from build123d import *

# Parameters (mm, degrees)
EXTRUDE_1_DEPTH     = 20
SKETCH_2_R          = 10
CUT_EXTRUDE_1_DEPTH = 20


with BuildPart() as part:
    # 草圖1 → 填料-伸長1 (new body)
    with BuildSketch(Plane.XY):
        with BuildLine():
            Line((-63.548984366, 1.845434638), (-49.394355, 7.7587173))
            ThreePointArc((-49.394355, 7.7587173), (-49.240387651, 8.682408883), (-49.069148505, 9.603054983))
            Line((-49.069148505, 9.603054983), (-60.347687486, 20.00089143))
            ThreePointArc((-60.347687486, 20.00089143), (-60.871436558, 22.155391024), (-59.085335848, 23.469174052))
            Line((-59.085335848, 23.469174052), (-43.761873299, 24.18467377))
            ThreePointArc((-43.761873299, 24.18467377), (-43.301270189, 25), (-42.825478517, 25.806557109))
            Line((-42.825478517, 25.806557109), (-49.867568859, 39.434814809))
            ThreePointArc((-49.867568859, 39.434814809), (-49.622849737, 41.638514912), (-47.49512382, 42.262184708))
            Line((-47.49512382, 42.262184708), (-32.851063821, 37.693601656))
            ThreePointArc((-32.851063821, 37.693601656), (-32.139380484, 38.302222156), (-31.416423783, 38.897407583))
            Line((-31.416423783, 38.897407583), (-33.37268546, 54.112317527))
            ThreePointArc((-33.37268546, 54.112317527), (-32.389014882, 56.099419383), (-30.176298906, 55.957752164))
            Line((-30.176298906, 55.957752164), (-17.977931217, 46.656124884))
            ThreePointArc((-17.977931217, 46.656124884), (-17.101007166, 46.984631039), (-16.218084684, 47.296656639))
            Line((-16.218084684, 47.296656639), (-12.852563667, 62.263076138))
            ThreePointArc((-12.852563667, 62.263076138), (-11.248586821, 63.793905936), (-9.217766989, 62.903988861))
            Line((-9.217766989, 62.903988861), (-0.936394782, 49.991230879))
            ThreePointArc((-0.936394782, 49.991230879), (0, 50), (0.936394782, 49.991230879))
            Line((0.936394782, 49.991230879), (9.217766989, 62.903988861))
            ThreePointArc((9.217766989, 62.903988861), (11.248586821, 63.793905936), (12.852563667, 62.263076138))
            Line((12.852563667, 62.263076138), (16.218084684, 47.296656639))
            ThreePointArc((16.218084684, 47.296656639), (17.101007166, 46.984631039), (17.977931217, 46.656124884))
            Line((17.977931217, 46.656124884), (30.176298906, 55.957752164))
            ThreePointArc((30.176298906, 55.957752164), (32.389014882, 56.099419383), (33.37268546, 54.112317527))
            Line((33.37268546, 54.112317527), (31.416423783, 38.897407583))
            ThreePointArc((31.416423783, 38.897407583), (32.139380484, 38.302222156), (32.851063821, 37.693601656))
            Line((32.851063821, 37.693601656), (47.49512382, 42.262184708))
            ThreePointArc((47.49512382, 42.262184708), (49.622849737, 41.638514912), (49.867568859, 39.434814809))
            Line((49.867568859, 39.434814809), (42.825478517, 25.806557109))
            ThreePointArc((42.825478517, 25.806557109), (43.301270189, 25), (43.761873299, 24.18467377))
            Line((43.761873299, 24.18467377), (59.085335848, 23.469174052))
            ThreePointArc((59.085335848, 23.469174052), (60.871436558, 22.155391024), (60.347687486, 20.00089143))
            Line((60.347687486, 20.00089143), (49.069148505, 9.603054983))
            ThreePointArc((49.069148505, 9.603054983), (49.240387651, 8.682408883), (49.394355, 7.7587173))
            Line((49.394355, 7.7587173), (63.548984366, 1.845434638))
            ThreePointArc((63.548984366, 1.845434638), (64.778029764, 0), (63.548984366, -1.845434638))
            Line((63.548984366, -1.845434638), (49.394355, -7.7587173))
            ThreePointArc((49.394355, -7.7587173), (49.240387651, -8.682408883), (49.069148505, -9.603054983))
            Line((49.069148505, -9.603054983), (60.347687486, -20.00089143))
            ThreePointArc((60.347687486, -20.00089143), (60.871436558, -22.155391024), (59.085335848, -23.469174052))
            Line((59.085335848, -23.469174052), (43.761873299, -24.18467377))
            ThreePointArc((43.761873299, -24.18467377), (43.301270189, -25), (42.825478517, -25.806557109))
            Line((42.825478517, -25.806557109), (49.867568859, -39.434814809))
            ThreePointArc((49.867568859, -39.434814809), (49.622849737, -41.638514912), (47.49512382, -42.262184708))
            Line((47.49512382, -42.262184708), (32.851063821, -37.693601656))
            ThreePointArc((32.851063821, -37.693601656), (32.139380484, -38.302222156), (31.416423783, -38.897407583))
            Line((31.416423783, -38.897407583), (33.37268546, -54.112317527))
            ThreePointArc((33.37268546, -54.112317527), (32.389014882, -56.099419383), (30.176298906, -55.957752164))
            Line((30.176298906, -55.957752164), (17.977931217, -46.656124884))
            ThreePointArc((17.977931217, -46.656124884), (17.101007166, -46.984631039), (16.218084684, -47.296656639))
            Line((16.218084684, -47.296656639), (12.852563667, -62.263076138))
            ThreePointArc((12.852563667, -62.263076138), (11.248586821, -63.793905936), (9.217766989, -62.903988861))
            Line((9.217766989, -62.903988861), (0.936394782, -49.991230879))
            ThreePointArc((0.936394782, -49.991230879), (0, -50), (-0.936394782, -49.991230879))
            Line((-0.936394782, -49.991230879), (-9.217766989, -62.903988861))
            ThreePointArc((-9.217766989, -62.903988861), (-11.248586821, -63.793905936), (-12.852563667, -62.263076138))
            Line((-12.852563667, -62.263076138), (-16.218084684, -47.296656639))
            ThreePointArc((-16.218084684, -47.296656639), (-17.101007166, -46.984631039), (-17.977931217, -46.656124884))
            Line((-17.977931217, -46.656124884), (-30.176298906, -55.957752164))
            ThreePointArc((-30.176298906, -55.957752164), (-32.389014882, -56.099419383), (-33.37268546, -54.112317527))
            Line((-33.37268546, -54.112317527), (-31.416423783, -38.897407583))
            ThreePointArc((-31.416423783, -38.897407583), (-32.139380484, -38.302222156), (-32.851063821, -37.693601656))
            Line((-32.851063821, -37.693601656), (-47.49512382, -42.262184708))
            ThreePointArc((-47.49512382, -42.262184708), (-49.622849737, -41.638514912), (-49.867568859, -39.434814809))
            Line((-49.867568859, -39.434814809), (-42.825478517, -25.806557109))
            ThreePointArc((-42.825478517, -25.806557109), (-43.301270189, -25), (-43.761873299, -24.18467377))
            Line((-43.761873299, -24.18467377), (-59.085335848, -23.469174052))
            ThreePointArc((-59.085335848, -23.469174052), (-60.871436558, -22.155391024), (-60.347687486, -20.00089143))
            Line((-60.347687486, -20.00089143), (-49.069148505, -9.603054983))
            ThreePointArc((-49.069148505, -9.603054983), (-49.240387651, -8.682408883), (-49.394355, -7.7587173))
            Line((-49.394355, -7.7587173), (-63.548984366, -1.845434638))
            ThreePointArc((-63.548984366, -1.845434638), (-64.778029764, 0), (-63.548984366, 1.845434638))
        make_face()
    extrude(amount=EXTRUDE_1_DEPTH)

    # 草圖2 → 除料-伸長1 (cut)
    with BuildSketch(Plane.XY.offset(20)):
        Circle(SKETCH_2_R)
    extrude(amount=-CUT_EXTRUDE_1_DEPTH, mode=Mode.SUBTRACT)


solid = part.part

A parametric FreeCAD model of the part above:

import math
import FreeCAD as App
import Part
import Sketcher

doc = App.newDocument("Part")
body = doc.addObject("PartDesign::Body", "Body")

# Sketch on XY plane
sketch1 = doc.addObject("Sketcher::SketchObject", "Sketch")
body.addObject(sketch1)
sketch1.AttachmentSupport = (doc.XY_Plane, [""])
sketch1.MapMode = "FlatFace"
sketch1.addGeometry([
    Part.LineSegment(App.Vector(-49.4, 7.8, 0), App.Vector(-63.5, 1.8, 0)),  # 0
    Part.ArcOfCircle(Part.Circle(App.Vector(-62.8, 0, 0), App.Vector(0, 0, 1), 2), math.radians(113), math.radians(247)),  # 1
    Part.LineSegment(App.Vector(-63.5, -1.8, 0), App.Vector(-49.4, -7.8, 0)),  # 2
    Part.ArcOfCircle(Part.Circle(App.Vector(0, 0, 0), App.Vector(0, 0, 1), 50), math.radians(-171.07), math.radians(-168.93)),  # 3
    Part.LineSegment(App.Vector(-49.1, -9.6, 0), App.Vector(-60.3, -20, 0)),  # 4
    Part.ArcOfCircle(Part.Circle(App.Vector(-59, -21.5, 0), App.Vector(0, 0, 1), 2), math.radians(133), math.radians(267)),  # 5
    Part.LineSegment(App.Vector(-59.1, -23.5, 0), App.Vector(-43.8, -24.2, 0)),  # 6
    Part.ArcOfCircle(Part.Circle(App.Vector(0, 0, 0), App.Vector(0, 0, 1), 50), math.radians(-151.07), math.radians(-148.93)),  # 7
    Part.LineSegment(App.Vector(-42.8, -25.8, 0), App.Vector(-49.9, -39.4, 0)),  # 8
    Part.ArcOfCircle(Part.Circle(App.Vector(-48.1, -40.4, 0), App.Vector(0, 0, 1), 2), math.radians(153), math.radians(287)),  # 9
    Part.LineSegment(App.Vector(-47.5, -42.3, 0), App.Vector(-32.9, -37.7, 0)),  # 10
    Part.ArcOfCircle(Part.Circle(App.Vector(0, 0, 0), App.Vector(0, 0, 1), 50), math.radians(-131.07), math.radians(-128.93)),  # 11
    Part.LineSegment(App.Vector(-31.4, -38.9, 0), App.Vector(-33.4, -54.1, 0)),  # 12
    Part.ArcOfCircle(Part.Circle(App.Vector(-31.4, -54.4, 0), App.Vector(0, 0, 1), 2), math.radians(173), math.radians(307)),  # 13
    Part.LineSegment(App.Vector(-30.2, -56, 0), App.Vector(-18, -46.7, 0)),  # 14
    Part.ArcOfCircle(Part.Circle(App.Vector(0, 0, 0), App.Vector(0, 0, 1), 50), math.radians(-111.07), math.radians(-108.93)),  # 15
    Part.LineSegment(App.Vector(-16.2, -47.3, 0), App.Vector(-12.9, -62.3, 0)),  # 16
    Part.ArcOfCircle(Part.Circle(App.Vector(-10.9, -61.8, 0), App.Vector(0, 0, 1), 2), math.radians(-167), math.radians(-33)),  # 17
    Part.LineSegment(App.Vector(-9.2, -62.9, 0), App.Vector(-0.9, -50, 0)),  # 18
    Part.ArcOfCircle(Part.Circle(App.Vector(0, 0, 0), App.Vector(0, 0, 1), 50), math.radians(-91.07), math.radians(-88.93)),  # 19
    Part.LineSegment(App.Vector(0.9, -50, 0), App.Vector(9.2, -62.9, 0)),  # 20
    Part.ArcOfCircle(Part.Circle(App.Vector(10.9, -61.8, 0), App.Vector(0, 0, 1), 2), math.radians(-147), math.radians(-13)),  # 21
    Part.LineSegment(App.Vector(12.9, -62.3, 0), App.Vector(16.2, -47.3, 0)),  # 22
    Part.ArcOfCircle(Part.Circle(App.Vector(0, 0, 0), App.Vector(0, 0, 1), 50), math.radians(-71.07), math.radians(-68.93)),  # 23
    Part.LineSegment(App.Vector(18, -46.7, 0), App.Vector(30.2, -56, 0)),  # 24
    Part.ArcOfCircle(Part.Circle(App.Vector(31.4, -54.4, 0), App.Vector(0, 0, 1), 2), math.radians(-127), math.radians(7)),  # 25
    Part.LineSegment(App.Vector(33.4, -54.1, 0), App.Vector(31.4, -38.9, 0)),  # 26
    Part.ArcOfCircle(Part.Circle(App.Vector(0, 0, 0), App.Vector(0, 0, 1), 50), math.radians(-51.07), math.radians(-48.93)),  # 27
    Part.LineSegment(App.Vector(32.9, -37.7, 0), App.Vector(47.5, -42.3, 0)),  # 28
    Part.ArcOfCircle(Part.Circle(App.Vector(48.1, -40.4, 0), App.Vector(0, 0, 1), 2), math.radians(-107), math.radians(27)),  # 29
    Part.LineSegment(App.Vector(49.9, -39.4, 0), App.Vector(42.8, -25.8, 0)),  # 30
    Part.ArcOfCircle(Part.Circle(App.Vector(0, 0, 0), App.Vector(0, 0, 1), 50), math.radians(-31.07), math.radians(-28.93)),  # 31
    Part.LineSegment(App.Vector(43.8, -24.2, 0), App.Vector(59.1, -23.5, 0)),  # 32
    Part.ArcOfCircle(Part.Circle(App.Vector(59, -21.5, 0), App.Vector(0, 0, 1), 2), math.radians(-87), math.radians(47)),  # 33
    Part.LineSegment(App.Vector(60.3, -20, 0), App.Vector(49.1, -9.6, 0)),  # 34
    Part.ArcOfCircle(Part.Circle(App.Vector(0, 0, 0), App.Vector(0, 0, 1), 50), math.radians(-11.07), math.radians(-8.93)),  # 35
    Part.LineSegment(App.Vector(49.4, -7.8, 0), App.Vector(63.5, -1.8, 0)),  # 36
    Part.ArcOfCircle(Part.Circle(App.Vector(62.8, 0, 0), App.Vector(0, 0, 1), 2), math.radians(-67), math.radians(67)),  # 37
    Part.LineSegment(App.Vector(63.5, 1.8, 0), App.Vector(49.4, 7.8, 0)),  # 38
    Part.ArcOfCircle(Part.Circle(App.Vector(0, 0, 0), App.Vector(0, 0, 1), 50), math.radians(8.93), math.radians(11.07)),  # 39
    Part.LineSegment(App.Vector(49.1, 9.6, 0), App.Vector(60.3, 20, 0)),  # 40
    Part.ArcOfCircle(Part.Circle(App.Vector(59, 21.5, 0), App.Vector(0, 0, 1), 2), math.radians(-47), math.radians(87)),  # 41
    Part.LineSegment(App.Vector(59.1, 23.5, 0), App.Vector(43.8, 24.2, 0)),  # 42
    Part.ArcOfCircle(Part.Circle(App.Vector(0, 0, 0), App.Vector(0, 0, 1), 50), math.radians(28.93), math.radians(31.07)),  # 43
    Part.LineSegment(App.Vector(42.8, 25.8, 0), App.Vector(49.9, 39.4, 0)),  # 44
    Part.ArcOfCircle(Part.Circle(App.Vector(48.1, 40.4, 0), App.Vector(0, 0, 1), 2), math.radians(-27), math.radians(107)),  # 45
    Part.LineSegment(App.Vector(47.5, 42.3, 0), App.Vector(32.9, 37.7, 0)),  # 46
    Part.ArcOfCircle(Part.Circle(App.Vector(0, 0, 0), App.Vector(0, 0, 1), 50), math.radians(48.93), math.radians(51.07)),  # 47
    Part.LineSegment(App.Vector(31.4, 38.9, 0), App.Vector(33.4, 54.1, 0)),  # 48
    Part.ArcOfCircle(Part.Circle(App.Vector(31.4, 54.4, 0), App.Vector(0, 0, 1), 2), math.radians(-7), math.radians(127)),  # 49
    Part.LineSegment(App.Vector(30.2, 56, 0), App.Vector(18, 46.7, 0)),  # 50
    Part.ArcOfCircle(Part.Circle(App.Vector(0, 0, 0), App.Vector(0, 0, 1), 50), math.radians(68.93), math.radians(71.07)),  # 51
    Part.LineSegment(App.Vector(16.2, 47.3, 0), App.Vector(12.9, 62.3, 0)),  # 52
    Part.ArcOfCircle(Part.Circle(App.Vector(10.9, 61.8, 0), App.Vector(0, 0, 1), 2), math.radians(13), math.radians(147)),  # 53
    Part.LineSegment(App.Vector(9.2, 62.9, 0), App.Vector(0.9, 50, 0)),  # 54
    Part.ArcOfCircle(Part.Circle(App.Vector(0, 0, 0), App.Vector(0, 0, 1), 50), math.radians(88.93), math.radians(91.07)),  # 55
    Part.LineSegment(App.Vector(-0.9, 50, 0), App.Vector(-9.2, 62.9, 0)),  # 56
    Part.ArcOfCircle(Part.Circle(App.Vector(-10.9, 61.8, 0), App.Vector(0, 0, 1), 2), math.radians(33), math.radians(167)),  # 57
    Part.LineSegment(App.Vector(-12.9, 62.3, 0), App.Vector(-16.2, 47.3, 0)),  # 58
    Part.ArcOfCircle(Part.Circle(App.Vector(0, 0, 0), App.Vector(0, 0, 1), 50), math.radians(108.93), math.radians(111.07)),  # 59
    Part.LineSegment(App.Vector(-18, 46.7, 0), App.Vector(-30.2, 56, 0)),  # 60
    Part.ArcOfCircle(Part.Circle(App.Vector(-31.4, 54.4, 0), App.Vector(0, 0, 1), 2), math.radians(53), math.radians(187)),  # 61
    Part.LineSegment(App.Vector(-33.4, 54.1, 0), App.Vector(-31.4, 38.9, 0)),  # 62
    Part.ArcOfCircle(Part.Circle(App.Vector(0, 0, 0), App.Vector(0, 0, 1), 50), math.radians(128.93), math.radians(131.07)),  # 63
    Part.LineSegment(App.Vector(-32.9, 37.7, 0), App.Vector(-47.5, 42.3, 0)),  # 64
    Part.ArcOfCircle(Part.Circle(App.Vector(-48.1, 40.4, 0), App.Vector(0, 0, 1), 2), math.radians(73), math.radians(207)),  # 65
    Part.LineSegment(App.Vector(-49.9, 39.4, 0), App.Vector(-42.8, 25.8, 0)),  # 66
    Part.ArcOfCircle(Part.Circle(App.Vector(0, 0, 0), App.Vector(0, 0, 1), 50), math.radians(148.93), math.radians(151.07)),  # 67
    Part.LineSegment(App.Vector(-43.8, 24.2, 0), App.Vector(-59.1, 23.5, 0)),  # 68
    Part.ArcOfCircle(Part.Circle(App.Vector(-59, 21.5, 0), App.Vector(0, 0, 1), 2), math.radians(93), math.radians(227)),  # 69
    Part.LineSegment(App.Vector(-60.3, 20, 0), App.Vector(-49.1, 9.6, 0)),  # 70
    Part.ArcOfCircle(Part.Circle(App.Vector(0, 0, 0), App.Vector(0, 0, 1), 50), math.radians(168.93), math.radians(171.07)),  # 71
], False)
sketch1.addConstraint([
    Sketcher.Constraint("Tangent", 0, 2, 1, 1),
    Sketcher.Constraint("Tangent", 1, 2, 2, 1),
    Sketcher.Constraint("Coincident", 2, 2, 3, 1),
    Sketcher.Constraint("Coincident", 3, 2, 4, 1),
    Sketcher.Constraint("Tangent", 4, 2, 5, 1),
    Sketcher.Constraint("Tangent", 5, 2, 6, 1),
    Sketcher.Constraint("Coincident", 6, 2, 7, 1),
    Sketcher.Constraint("Coincident", 7, 2, 8, 1),
    Sketcher.Constraint("Tangent", 8, 2, 9, 1),
    Sketcher.Constraint("Tangent", 9, 2, 10, 1),
    Sketcher.Constraint("Coincident", 10, 2, 11, 1),
    Sketcher.Constraint("Coincident", 11, 2, 12, 1),
    Sketcher.Constraint("Tangent", 12, 2, 13, 1),
    Sketcher.Constraint("Tangent", 13, 2, 14, 1),
    Sketcher.Constraint("Coincident", 14, 2, 15, 1),
    Sketcher.Constraint("Coincident", 15, 2, 16, 1),
    Sketcher.Constraint("Tangent", 16, 2, 17, 1),
    Sketcher.Constraint("Tangent", 17, 2, 18, 1),
    Sketcher.Constraint("Coincident", 18, 2, 19, 1),
    Sketcher.Constraint("Coincident", 19, 2, 20, 1),
    Sketcher.Constraint("Tangent", 20, 2, 21, 1),
    Sketcher.Constraint("Tangent", 21, 2, 22, 1),
    Sketcher.Constraint("Coincident", 22, 2, 23, 1),
    Sketcher.Constraint("Coincident", 23, 2, 24, 1),
    Sketcher.Constraint("Tangent", 24, 2, 25, 1),
    Sketcher.Constraint("Tangent", 25, 2, 26, 1),
    Sketcher.Constraint("Coincident", 26, 2, 27, 1),
    Sketcher.Constraint("Coincident", 27, 2, 28, 1),
    Sketcher.Constraint("Tangent", 28, 2, 29, 1),
    Sketcher.Constraint("Tangent", 29, 2, 30, 1),
    Sketcher.Constraint("Coincident", 30, 2, 31, 1),
    Sketcher.Constraint("Coincident", 31, 2, 32, 1),
    Sketcher.Constraint("Tangent", 32, 2, 33, 1),
    Sketcher.Constraint("Tangent", 33, 2, 34, 1),
    Sketcher.Constraint("Coincident", 34, 2, 35, 1),
    Sketcher.Constraint("Coincident", 35, 2, 36, 1),
    Sketcher.Constraint("Tangent", 36, 2, 37, 1),
    Sketcher.Constraint("Tangent", 37, 2, 38, 1),
    Sketcher.Constraint("Coincident", 38, 2, 39, 1),
    Sketcher.Constraint("Coincident", 39, 2, 40, 1),
    Sketcher.Constraint("Tangent", 40, 2, 41, 1),
    Sketcher.Constraint("Tangent", 41, 2, 42, 1),
    Sketcher.Constraint("Coincident", 42, 2, 43, 1),
    Sketcher.Constraint("Coincident", 43, 2, 44, 1),
    Sketcher.Constraint("Tangent", 44, 2, 45, 1),
    Sketcher.Constraint("Tangent", 45, 2, 46, 1),
    Sketcher.Constraint("Coincident", 46, 2, 47, 1),
    Sketcher.Constraint("Coincident", 47, 2, 48, 1),
    Sketcher.Constraint("Tangent", 48, 2, 49, 1),
    Sketcher.Constraint("Tangent", 49, 2, 50, 1),
    Sketcher.Constraint("Coincident", 50, 2, 51, 1),
    Sketcher.Constraint("Coincident", 51, 2, 52, 1),
    Sketcher.Constraint("Tangent", 52, 2, 53, 1),
    Sketcher.Constraint("Tangent", 53, 2, 54, 1),
    Sketcher.Constraint("Coincident", 54, 2, 55, 1),
    Sketcher.Constraint("Coincident", 55, 2, 56, 1),
    Sketcher.Constraint("Tangent", 56, 2, 57, 1),
    Sketcher.Constraint("Tangent", 57, 2, 58, 1),
    Sketcher.Constraint("Coincident", 58, 2, 59, 1),
    Sketcher.Constraint("Coincident", 59, 2, 60, 1),
    Sketcher.Constraint("Tangent", 60, 2, 61, 1),
    Sketcher.Constraint("Tangent", 61, 2, 62, 1),
    Sketcher.Constraint("Coincident", 62, 2, 63, 1),
    Sketcher.Constraint("Coincident", 63, 2, 64, 1),
    Sketcher.Constraint("Tangent", 64, 2, 65, 1),
    Sketcher.Constraint("Tangent", 65, 2, 66, 1),
    Sketcher.Constraint("Coincident", 66, 2, 67, 1),
    Sketcher.Constraint("Coincident", 67, 2, 68, 1),
    Sketcher.Constraint("Tangent", 68, 2, 69, 1),
    Sketcher.Constraint("Tangent", 69, 2, 70, 1),
    Sketcher.Constraint("Coincident", 70, 2, 71, 1),
    Sketcher.Constraint("Coincident", 71, 2, 0, 1),
    Sketcher.Constraint("Coincident", 3, 3, -1, 1),
    Sketcher.Constraint("Coincident", 7, 3, -1, 1),
    Sketcher.Constraint("Coincident", 11, 3, -1, 1),
    Sketcher.Constraint("Coincident", 15, 3, -1, 1),
    Sketcher.Constraint("Coincident", 19, 3, -1, 1),
    Sketcher.Constraint("Coincident", 23, 3, -1, 1),
    Sketcher.Constraint("Coincident", 27, 3, -1, 1),
    Sketcher.Constraint("Coincident", 31, 3, -1, 1),
    Sketcher.Constraint("Coincident", 35, 3, -1, 1),
    Sketcher.Constraint("Coincident", 39, 3, -1, 1),
    Sketcher.Constraint("Coincident", 43, 3, -1, 1),
    Sketcher.Constraint("Coincident", 47, 3, -1, 1),
    Sketcher.Constraint("Coincident", 51, 3, -1, 1),
    Sketcher.Constraint("Coincident", 55, 3, -1, 1),
    Sketcher.Constraint("Coincident", 59, 3, -1, 1),
    Sketcher.Constraint("Coincident", 63, 3, -1, 1),
    Sketcher.Constraint("Coincident", 67, 3, -1, 1),
    Sketcher.Constraint("Coincident", 71, 3, -1, 1),
    Sketcher.Constraint("Equal", 1, 5),
    Sketcher.Constraint("Equal", 5, 9),
    Sketcher.Constraint("Equal", 7, 11),
    Sketcher.Constraint("Equal", 9, 13),
    Sketcher.Constraint("Equal", 13, 17),
    Sketcher.Constraint("Equal", 11, 19),
    Sketcher.Constraint("Equal", 17, 21),
    Sketcher.Constraint("Equal", 15, 23),
    Sketcher.Constraint("Equal", 21, 25),
    Sketcher.Constraint("Equal", 19, 27),
    Sketcher.Constraint("Equal", 25, 29),
    Sketcher.Constraint("Equal", 27, 31),
    Sketcher.Constraint("Equal", 29, 33),
    Sketcher.Constraint("Equal", 27, 35),
    Sketcher.Constraint("Equal", 33, 37),
    Sketcher.Constraint("Equal", 35, 39),
    Sketcher.Constraint("Equal", 37, 41),
    Sketcher.Constraint("Equal", 31, 43),
    Sketcher.Constraint("Equal", 41, 45),
    Sketcher.Constraint("Equal", 43, 47),
    Sketcher.Constraint("Equal", 45, 49),
    Sketcher.Constraint("Equal", 23, 51),
    Sketcher.Constraint("Equal", 49, 53),
    Sketcher.Constraint("Equal", 47, 55),
    Sketcher.Constraint("Equal", 53, 57),
    Sketcher.Constraint("Equal", 51, 59),
    Sketcher.Constraint("Equal", 57, 61),
    Sketcher.Constraint("Equal", 55, 63),
    Sketcher.Constraint("Equal", 61, 65),
    Sketcher.Constraint("Equal", 63, 67),
    Sketcher.Constraint("Equal", 65, 69),
    Sketcher.Constraint("Equal", 63, 71),
    Sketcher.Constraint("Symmetric", 1, 3, 37, 3, -1, 1),
    Sketcher.Constraint("Symmetric", 5, 3, 41, 3, -1, 1),
    Sketcher.Constraint("Symmetric", 9, 3, 45, 3, -1, 1),
    Sketcher.Constraint("Symmetric", 13, 3, 49, 3, -1, 1),
    Sketcher.Constraint("Symmetric", 17, 3, 53, 3, -1, 1),
    Sketcher.Constraint("Symmetric", 21, 3, 57, 3, -1, 1),
    Sketcher.Constraint("Symmetric", 25, 3, 61, 3, -1, 1),
    Sketcher.Constraint("Symmetric", 29, 3, 65, 3, -1, 1),
    Sketcher.Constraint("Symmetric", 33, 3, 69, 3, -1, 1),
    Sketcher.Constraint("Symmetric", 2, 2, 38, 2, -1, 1),
    Sketcher.Constraint("Symmetric", 17, 3, 21, 3, -2),
    Sketcher.Constraint("Symmetric", 13, 3, 25, 3, -2),
    Sketcher.Constraint("Symmetric", 9, 3, 29, 3, -2),
    Sketcher.Constraint("Symmetric", 5, 3, 33, 3, -2),
    Sketcher.Constraint("Symmetric", 1, 2, 36, 2, -2),
    Sketcher.Constraint("Parallel", 0, 36),
    Sketcher.Constraint("Parallel", 4, 40),
    Sketcher.Constraint("Parallel", 6, 42),
    Sketcher.Constraint("Parallel", 8, 44),
    Sketcher.Constraint("Parallel", 10, 46),
    Sketcher.Constraint("Parallel", 12, 48),
    Sketcher.Constraint("Parallel", 14, 50),
    Sketcher.Constraint("Parallel", 16, 52),
    Sketcher.Constraint("Parallel", 18, 54),
    Sketcher.Constraint("Parallel", 20, 56),
    Sketcher.Constraint("Parallel", 22, 58),
    Sketcher.Constraint("Parallel", 24, 60),
    Sketcher.Constraint("Parallel", 26, 62),
    Sketcher.Constraint("Parallel", 28, 64),
    Sketcher.Constraint("Parallel", 30, 66),
    Sketcher.Constraint("Parallel", 32, 68),
    Sketcher.Constraint("Parallel", 34, 70),
    Sketcher.Constraint("Horizontal", 18, 2, 19, 2),
    Sketcher.Constraint("Horizontal", 16, 2, 21, 2),
    Sketcher.Constraint("Horizontal", 14, 2, 23, 2),
    Sketcher.Constraint("Horizontal", 12, 2, 25, 2),
    Sketcher.Constraint("Horizontal", 10, 2, 27, 2),
    Sketcher.Constraint("Horizontal", 8, 2, 29, 2),
    Sketcher.Constraint("Horizontal", 6, 2, 31, 2),
    Sketcher.Constraint("Horizontal", 4, 2, 33, 2),
    Sketcher.Constraint("Equal", 2, 4),
    Sketcher.Constraint("Equal", 4, 6),
    Sketcher.Constraint("Equal", 6, 8),
    Sketcher.Constraint("Equal", 8, 10),
    Sketcher.Constraint("Equal", 10, 12),
    Sketcher.Constraint("Equal", 12, 14),
    Sketcher.Constraint("Equal", 14, 16),
    Sketcher.Constraint("Equal", 16, 18),
    Sketcher.Constraint("Radius", 1, 2.0),
    Sketcher.Constraint("Radius", 3, 49.999999),
    Sketcher.Constraint("Radius", 15, 50.000004),
    Sketcher.Constraint("DistanceY", 10, 2, -1, 1, 37.693602),
    Sketcher.Constraint("DistanceX", 13, 2, -1, 1, 30.176299),
    Sketcher.Constraint("DistanceX", 1, 3, -1, 1, 62.77803),
    Sketcher.Constraint("DistanceX", 5, 3, -1, 1, 58.992051),
    Sketcher.Constraint("DistanceY", 5, 3, -1, 1, 21.471351),
    Sketcher.Constraint("DistanceX", 9, 3, -1, 1, 48.090761),
    Sketcher.Constraint("DistanceY", 9, 3, -1, 1, 40.35294),
    Sketcher.Constraint("DistanceY", 13, 3, -1, 1, 54.367369),
    Sketcher.Constraint("DistanceX", 17, 3, -1, 1, 10.90129),
    Sketcher.Constraint("DistanceY", 17, 3, -1, 1, 61.82429),
])
pad1 = doc.addObject("PartDesign::Pad", "Pad")
body.addObject(pad1)
pad1.Profile = sketch1
pad1.Length = 20

# Sketch on XY plane
sketch2 = doc.addObject("Sketcher::SketchObject", "Sketch001")
body.addObject(sketch2)
sketch2.AttachmentSupport = (doc.XY_Plane, [""])
sketch2.MapMode = "FlatFace"
sketch2.AttachmentOffset = App.Placement(App.Vector(0, 0, 20), App.Rotation())
sketch2.addGeometry(Part.Circle(App.Vector(0, 0, 0), App.Vector(0, 0, 1), 10), False)
sketch2.addConstraint([
    Sketcher.Constraint("Coincident", 0, 3, -1, 1),
    Sketcher.Constraint("Diameter", 0, 20.0),
])
pocket1 = doc.addObject("PartDesign::Pocket", "Pocket")
body.addObject(pocket1)
pocket1.Profile = sketch2
pocket1.Length = 20

doc.recompute()
